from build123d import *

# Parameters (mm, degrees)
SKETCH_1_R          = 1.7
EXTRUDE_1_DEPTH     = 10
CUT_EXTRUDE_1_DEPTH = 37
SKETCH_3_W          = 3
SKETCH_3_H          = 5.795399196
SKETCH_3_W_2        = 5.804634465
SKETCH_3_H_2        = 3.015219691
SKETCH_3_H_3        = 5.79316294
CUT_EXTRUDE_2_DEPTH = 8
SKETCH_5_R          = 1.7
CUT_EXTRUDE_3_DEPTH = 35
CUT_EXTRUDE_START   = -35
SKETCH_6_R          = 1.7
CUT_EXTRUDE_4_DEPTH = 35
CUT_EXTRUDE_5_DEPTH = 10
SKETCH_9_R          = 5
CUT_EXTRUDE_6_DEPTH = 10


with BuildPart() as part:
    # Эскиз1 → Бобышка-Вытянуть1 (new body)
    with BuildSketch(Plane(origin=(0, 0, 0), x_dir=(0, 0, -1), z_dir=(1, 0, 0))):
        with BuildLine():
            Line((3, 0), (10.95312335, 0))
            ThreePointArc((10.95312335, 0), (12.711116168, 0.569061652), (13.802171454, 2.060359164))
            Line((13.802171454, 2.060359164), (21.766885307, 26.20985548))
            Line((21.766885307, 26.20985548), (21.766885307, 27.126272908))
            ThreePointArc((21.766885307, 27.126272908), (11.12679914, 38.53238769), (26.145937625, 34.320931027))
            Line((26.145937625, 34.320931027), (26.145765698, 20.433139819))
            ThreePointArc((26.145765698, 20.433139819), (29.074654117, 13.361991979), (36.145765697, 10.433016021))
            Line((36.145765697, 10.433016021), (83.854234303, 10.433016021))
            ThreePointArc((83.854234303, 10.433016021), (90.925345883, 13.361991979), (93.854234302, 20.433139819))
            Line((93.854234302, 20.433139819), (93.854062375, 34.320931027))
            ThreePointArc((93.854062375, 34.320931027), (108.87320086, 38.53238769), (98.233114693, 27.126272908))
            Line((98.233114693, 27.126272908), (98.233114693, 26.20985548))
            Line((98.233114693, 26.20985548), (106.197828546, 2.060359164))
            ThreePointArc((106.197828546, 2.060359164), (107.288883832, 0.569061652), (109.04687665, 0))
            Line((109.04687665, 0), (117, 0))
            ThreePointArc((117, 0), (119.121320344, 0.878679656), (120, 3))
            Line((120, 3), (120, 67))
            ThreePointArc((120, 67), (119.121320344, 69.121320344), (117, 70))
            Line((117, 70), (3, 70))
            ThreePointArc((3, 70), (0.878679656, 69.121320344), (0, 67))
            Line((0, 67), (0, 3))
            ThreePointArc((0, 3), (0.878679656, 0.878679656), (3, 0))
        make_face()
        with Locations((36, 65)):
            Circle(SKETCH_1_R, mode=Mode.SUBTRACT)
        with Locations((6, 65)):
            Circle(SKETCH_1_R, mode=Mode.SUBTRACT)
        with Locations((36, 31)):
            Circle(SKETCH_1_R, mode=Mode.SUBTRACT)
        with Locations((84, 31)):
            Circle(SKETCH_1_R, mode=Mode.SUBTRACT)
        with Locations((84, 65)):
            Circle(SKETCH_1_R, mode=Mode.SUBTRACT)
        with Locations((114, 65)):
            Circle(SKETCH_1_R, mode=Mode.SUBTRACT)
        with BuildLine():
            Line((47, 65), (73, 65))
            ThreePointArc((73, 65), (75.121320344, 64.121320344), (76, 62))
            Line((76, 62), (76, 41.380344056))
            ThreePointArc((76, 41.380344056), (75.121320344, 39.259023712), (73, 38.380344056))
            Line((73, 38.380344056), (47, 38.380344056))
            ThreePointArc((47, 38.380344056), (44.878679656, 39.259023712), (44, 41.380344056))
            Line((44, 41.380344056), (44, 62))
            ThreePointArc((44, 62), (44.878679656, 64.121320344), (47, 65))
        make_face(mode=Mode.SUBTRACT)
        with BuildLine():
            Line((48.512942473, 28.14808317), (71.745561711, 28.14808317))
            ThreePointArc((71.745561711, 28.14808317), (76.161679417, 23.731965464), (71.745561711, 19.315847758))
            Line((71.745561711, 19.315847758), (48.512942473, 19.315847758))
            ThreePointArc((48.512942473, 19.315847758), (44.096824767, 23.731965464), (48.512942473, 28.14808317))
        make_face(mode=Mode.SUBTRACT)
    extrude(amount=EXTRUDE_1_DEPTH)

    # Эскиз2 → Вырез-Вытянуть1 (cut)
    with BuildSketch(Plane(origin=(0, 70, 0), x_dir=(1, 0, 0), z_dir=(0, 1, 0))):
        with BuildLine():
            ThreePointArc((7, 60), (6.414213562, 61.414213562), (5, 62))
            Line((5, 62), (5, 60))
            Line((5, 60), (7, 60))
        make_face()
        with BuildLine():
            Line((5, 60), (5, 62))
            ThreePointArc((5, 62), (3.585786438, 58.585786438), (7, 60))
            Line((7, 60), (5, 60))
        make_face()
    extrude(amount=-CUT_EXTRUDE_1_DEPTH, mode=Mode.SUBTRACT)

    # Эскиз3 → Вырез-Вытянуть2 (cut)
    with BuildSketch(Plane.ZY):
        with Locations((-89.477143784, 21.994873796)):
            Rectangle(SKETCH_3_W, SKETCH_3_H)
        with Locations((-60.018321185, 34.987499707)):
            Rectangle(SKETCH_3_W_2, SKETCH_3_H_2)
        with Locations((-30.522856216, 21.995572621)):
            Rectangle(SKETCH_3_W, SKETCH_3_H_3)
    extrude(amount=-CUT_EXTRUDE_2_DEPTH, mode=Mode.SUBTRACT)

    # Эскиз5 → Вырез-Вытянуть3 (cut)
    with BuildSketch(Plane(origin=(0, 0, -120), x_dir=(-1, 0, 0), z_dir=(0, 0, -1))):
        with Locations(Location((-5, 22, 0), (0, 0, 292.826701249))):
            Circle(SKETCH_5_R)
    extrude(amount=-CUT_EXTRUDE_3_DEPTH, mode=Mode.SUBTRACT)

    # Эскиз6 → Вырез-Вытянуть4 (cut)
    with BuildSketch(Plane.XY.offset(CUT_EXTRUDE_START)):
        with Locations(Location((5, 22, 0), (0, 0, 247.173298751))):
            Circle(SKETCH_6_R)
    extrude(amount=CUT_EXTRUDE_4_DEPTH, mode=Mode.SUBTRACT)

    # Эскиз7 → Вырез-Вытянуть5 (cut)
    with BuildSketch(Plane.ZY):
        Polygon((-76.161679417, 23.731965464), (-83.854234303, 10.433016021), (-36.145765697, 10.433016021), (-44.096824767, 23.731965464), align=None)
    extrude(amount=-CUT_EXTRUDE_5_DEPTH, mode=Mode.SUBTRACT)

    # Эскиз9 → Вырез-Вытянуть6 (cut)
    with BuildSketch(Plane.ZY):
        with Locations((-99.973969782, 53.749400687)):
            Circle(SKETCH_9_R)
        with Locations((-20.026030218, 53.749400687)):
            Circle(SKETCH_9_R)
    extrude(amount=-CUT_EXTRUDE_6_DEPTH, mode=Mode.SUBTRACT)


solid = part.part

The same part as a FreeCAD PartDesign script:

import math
import FreeCAD as App
import Part
import Sketcher

doc = App.newDocument("Part")
body = doc.addObject("PartDesign::Body", "Body")

# Sketch on YZ plane
sketch1 = doc.addObject("Sketcher::SketchObject", "Sketch")
body.addObject(sketch1)
sketch1.AttachmentSupport = (doc.YZ_Plane, [""])
sketch1.MapMode = "FlatFace"
sketch1.addGeometry([
    Part.LineSegment(App.Vector(0, -3, 0), App.Vector(0, -11, 0)),  # 0
    Part.ArcOfCircle(Part.Circle(App.Vector(3, -11, 0), App.Vector(0, 0, 1), 3), math.radians(180), math.radians(252)),  # 1
    Part.LineSegment(App.Vector(2.1, -13.8, 0), App.Vector(26.2, -21.8, 0)),  # 2
    Part.LineSegment(App.Vector(26.2, -21.8, 0), App.Vector(27.1, -21.8, 0)),  # 3
    Part.ArcOfCircle(Part.Circle(App.Vector(34.3, -18, 0), App.Vector(0, 0, 1), 8.1), math.radians(-90), math.radians(207)),  # 4
    Part.LineSegment(App.Vector(34.3, -26.1, 0), App.Vector(20.4, -26.1, 0)),  # 5
    Part.ArcOfCircle(Part.Circle(App.Vector(20.4, -36.1, 0), App.Vector(0, 0, 1), 10), math.radians(90), math.radians(180)),  # 6
    Part.LineSegment(App.Vector(10.4, -36.1, 0), App.Vector(10.4, -83.9, 0)),  # 7
    Part.ArcOfCircle(Part.Circle(App.Vector(20.4, -83.9, 0), App.Vector(0, 0, 1), 10), math.radians(-180), math.radians(-90)),  # 8
    Part.LineSegment(App.Vector(20.4, -93.9, 0), App.Vector(34.3, -93.9, 0)),  # 9
    Part.ArcOfCircle(Part.Circle(App.Vector(34.3, -102, 0), App.Vector(0, 0, 1), 8.1), math.radians(153), math.radians(450)),  # 10
    Part.LineSegment(App.Vector(27.1, -98.2, 0), App.Vector(26.2, -98.2, 0)),  # 11
    Part.LineSegment(App.Vector(26.2, -98.2, 0), App.Vector(2.1, -106.2, 0)),  # 12
    Part.ArcOfCircle(Part.Circle(App.Vector(3, -109, 0), App.Vector(0, 0, 1), 3), math.radians(108), math.radians(180)),  # 13
    Part.LineSegment(App.Vector(0, -109, 0), App.Vector(0, -117, 0)),  # 14
    Part.ArcOfCircle(Part.Circle(App.Vector(3, -117, 0), App.Vector(0, 0, 1), 3), math.radians(180), math.radians(270)),  # 15
    Part.LineSegment(App.Vector(3, -120, 0), App.Vector(67, -120, 0)),  # 16
    Part.ArcOfCircle(Part.Circle(App.Vector(67, -117, 0), App.Vector(0, 0, 1), 3), math.radians(-90), math.radians(0)),  # 17
    Part.LineSegment(App.Vector(70, -117, 0), App.Vector(70, -3, 0)),  # 18
    Part.ArcOfCircle(Part.Circle(App.Vector(67, -3, 0), App.Vector(0, 0, 1), 3), math.radians(0), math.radians(90)),  # 19
    Part.LineSegment(App.Vector(67, 0, 0), App.Vector(3, 0, 0)),  # 20
    Part.ArcOfCircle(Part.Circle(App.Vector(3, -3, 0), App.Vector(0, 0, 1), 3), math.radians(90), math.radians(180)),  # 21
    Part.Circle(App.Vector(31, -36, 0), App.Vector(0, 0, 1), 1.7),  # 22
    Part.ArcOfCircle(Part.Circle(App.Vector(23.7, -48.5, 0), App.Vector(0, 0, 1), 4.4), math.radians(0), math.radians(180)),  # 23
    Part.LineSegment(App.Vector(28.1, -48.5, 0), App.Vector(28.1, -71.7, 0)),  # 24
    Part.ArcOfCircle(Part.Circle(App.Vector(23.7, -71.7, 0), App.Vector(0, 0, 1), 4.4), math.radians(180), math.radians(360)),  # 25
    Part.LineSegment(App.Vector(19.3, -71.7, 0), App.Vector(19.3, -48.5, 0)),  # 26
    Part.Circle(App.Vector(31, -84, 0), App.Vector(0, 0, 1), 1.7),  # 27
    Part.Circle(App.Vector(65, -6, 0), App.Vector(0, 0, 1), 1.7),  # 28
    Part.Circle(App.Vector(65, -36, 0), App.Vector(0, 0, 1), 1.7),  # 29
    Part.ArcOfCircle(Part.Circle(App.Vector(62, -47, 0), App.Vector(0, 0, 1), 3), math.radians(0), math.radians(90)),  # 30
    Part.LineSegment(App.Vector(65, -47, 0), App.Vector(65, -73, 0)),  # 31
    Part.ArcOfCircle(Part.Circle(App.Vector(62, -73, 0), App.Vector(0, 0, 1), 3), math.radians(-90), math.radians(0)),  # 32
    Part.LineSegment(App.Vector(62, -76, 0), App.Vector(41.4, -76, 0)),  # 33
    Part.ArcOfCircle(Part.Circle(App.Vector(41.4, -73, 0), App.Vector(0, 0, 1), 3), math.radians(180), math.radians(270)),  # 34
    Part.LineSegment(App.Vector(38.4, -73, 0), App.Vector(38.4, -47, 0)),  # 35
    Part.ArcOfCircle(Part.Circle(App.Vector(41.4, -47, 0), App.Vector(0, 0, 1), 3), math.radians(90), math.radians(180)),  # 36
    Part.LineSegment(App.Vector(41.4, -44, 0), App.Vector(62, -44, 0)),  # 37
    Part.Circle(App.Vector(65, -84, 0), App.Vector(0, 0, 1), 1.7),  # 38
    Part.Circle(App.Vector(65, -114, 0), App.Vector(0, 0, 1), 1.7),  # 39
], False)
sketch1.addConstraint([
    Sketcher.Constraint("Tangent", 0, 2, 1, 1),
    Sketcher.Constraint("Tangent", 1, 2, 2, 1),
    Sketcher.Constraint("Coincident", 2, 2, 3, 1),
    Sketcher.Constraint("Coincident", 3, 2, 4, 2),
    Sketcher.Constraint("Tangent", 4, 1, 5, 1),
    Sketcher.Constraint("Tangent", 5, 2, 6, 1),
    Sketcher.Constraint("Tangent", 6, 2, 7, 1),
    Sketcher.Constraint("Tangent", 7, 2, 8, 1),
    Sketcher.Constraint("Tangent", 8, 2, 9, 1),
    Sketcher.Constraint("Tangent", 9, 2, 10, 2),
    Sketcher.Constraint("Coincident", 10, 1, 11, 1),
    Sketcher.Constraint("Coincident", 11, 2, 12, 1),
    Sketcher.Constraint("Tangent", 12, 2, 13, 1),
    Sketcher.Constraint("Tangent", 13, 2, 14, 1),
    Sketcher.Constraint("Tangent", 14, 2, 15, 1),
    Sketcher.Constraint("Tangent", 15, 2, 16, 1),
    Sketcher.Constraint("Tangent", 16, 2, 17, 1),
    Sketcher.Constraint("Tangent", 17, 2, 18, 1),
    Sketcher.Constraint("Tangent", 18, 2, 19, 1),
    Sketcher.Constraint("Tangent", 19, 2, 20, 1),
    Sketcher.Constraint("Tangent", 20, 2, 21, 1),
    Sketcher.Constraint("Tangent", 21, 2, 0, 1),
    Sketcher.Constraint("Tangent", 23, 1, 24, 1),
    Sketcher.Constraint("Tangent", 24, 2, 25, 2),
    Sketcher.Constraint("Tangent", 25, 1, 26, 1),
    Sketcher.Constraint("Tangent", 26, 2, 23, 2),
    Sketcher.Constraint("Tangent", 30, 1, 31, 1),
    Sketcher.Constraint("Tangent", 31, 2, 32, 2),
    Sketcher.Constraint("Tangent", 32, 1, 33, 1),
    Sketcher.Constraint("Tangent", 33, 2, 34, 2),
    Sketcher.Constraint("Tangent", 34, 1, 35, 1),
    Sketcher.Constraint("Tangent", 35, 2, 36, 2),
    Sketcher.Constraint("Tangent", 36, 1, 37, 1),
    Sketcher.Constraint("Tangent", 37, 2, 30, 2),
    Sketcher.Constraint("Vertical", 0),
    Sketcher.Constraint("Horizontal", 3),
    Sketcher.Constraint("Vertical", 7),
    Sketcher.Constraint("Horizontal", 11),
    Sketcher.Constraint("Vertical", 14),
    Sketcher.Constraint("Horizontal", 16),
    Sketcher.Constraint("Vertical", 18),
    Sketcher.Constraint("Horizontal", 20),
    Sketcher.Constraint("Vertical", 24),
    Sketcher.Constraint("Vertical", 26),
    Sketcher.Constraint("Vertical", 31),
    Sketcher.Constraint("Horizontal", 33),
    Sketcher.Constraint("Vertical", 35),
    Sketcher.Constraint("Horizontal", 37),
    Sketcher.Constraint("Equal", 6, 8),
    Sketcher.Constraint("Equal", 4, 10),
    Sketcher.Constraint("Equal", 1, 13),
    Sketcher.Constraint("Equal", 13, 15),
    Sketcher.Constraint("Equal", 15, 17),
    Sketcher.Constraint("Equal", 17, 19),
    Sketcher.Constraint("Equal", 19, 21),
    Sketcher.Constraint("Equal", 22, 27),
    Sketcher.Constraint("Equal", 27, 28),
    Sketcher.Constraint("Equal", 28, 29),
    Sketcher.Constraint("Equal", 21, 30),
    Sketcher.Constraint("Equal", 30, 32),
    Sketcher.Constraint("Equal", 32, 34),
    Sketcher.Constraint("Equal", 34, 36),
    Sketcher.Constraint("Equal", 29, 38),
    Sketcher.Constraint("Equal", 38, 39),
    Sketcher.Constraint("PointOnObject", 0, 2, -2),
    Sketcher.Constraint("PointOnObject", 13, 2, -2),
    Sketcher.Constraint("PointOnObject", 19, 2, -1),
    Sketcher.Constraint("Horizontal", 22, 3, 29, 3),
    Sketcher.Constraint("Horizontal", 27, 3, 38, 3),
    Sketcher.Constraint("Vertical", 4, 3, 10, 3),
    Sketcher.Constraint("Vertical", 22, 3, 27, 3),
    Sketcher.Constraint("Vertical", 28, 3, 29, 3),
    Sketcher.Constraint("Vertical", 29, 3, 38, 3),
    Sketcher.Constraint("Vertical", 38, 3, 39, 3),
    Sketcher.Constraint("Vertical", 5, 2, 8, 2),
    Sketcher.Constraint("Vertical", 3, 2, 10, 1),
    Sketcher.Constraint("Vertical", 2, 2, 11, 2),
    Sketcher.Constraint("Vertical", 1, 2, 12, 2),
    Sketcher.Constraint("Vertical", 39, 3, 30, 1),
    Sketcher.Constraint("Equal", 0, 14),
    Sketcher.Constraint("Radius", 1, 3.0),
    Sketcher.Constraint("Radius", 6, 10.0),
    Sketcher.Constraint("Diameter", 22, 3.4),
    Sketcher.Constraint("Radius", 4, 8.1),
    Sketcher.Constraint("DistanceX", 16, 1, 16, 2, 64.0),
    Sketcher.Constraint("DistanceY", 18, 1, 18, 2, 114.0),
    Sketcher.Constraint("DistanceY", 31, 2, 31, 1, 26.0),
    Sketcher.Constraint("DistanceX", -1, 1, 22, 3, 31.0),
    Sketcher.Constraint("DistanceY", 22, 3, -1, 1, 36.0),
    Sketcher.Constraint("DistanceY", 27, 3, -1, 1, 84.0),
    Sketcher.Constraint("DistanceX", -1, 1, 28, 3, 65.0),
    Sketcher.Constraint("DistanceY", 28, 3, -1, 1, 6.0),
    Sketcher.Constraint("DistanceY", 30, 3, -1, 1, 47.0),
    Sketcher.Constraint("DistanceY", 39, 3, -1, 1, 114.0),
    Sketcher.Constraint("Radius", 23, 4.416118),
    Sketcher.Constraint("DistanceY", 7, 2, 7, 1, 47.708469),
    Sketcher.Constraint("DistanceY", 24, 2, 24, 1, 23.232619),
    Sketcher.Constraint("DistanceY", 10, 3, 25, 3, 30.208501),
    Sketcher.Constraint("DistanceX", 4, 1, 4, 3, 0.0001),
    Sketcher.Constraint("Distance", 5, 13.887791),
    Sketcher.Constraint("DistanceX", 3, 1, 3, 2, 0.916417),
    Sketcher.Constraint("DistanceX", 33, 2, 33, 1, 20.619656),
    Sketcher.Constraint("DistanceY", 0, 2, 0, 1, 7.953123),
    Sketcher.Constraint("DistanceX", -1, 1, 4, 3, 34.321031),
    Sketcher.Constraint("DistanceX", -1, 1, 1, 2, 2.060359),
    Sketcher.Constraint("DistanceX", 6, 3, 23, 3, 3.298949),
])
pad1 = doc.addObject("PartDesign::Pad", "Pad")
body.addObject(pad1)
pad1.Profile = sketch1
pad1.Length = 10

# Sketch on XZ plane
sketch2 = doc.addObject("Sketcher::SketchObject", "Sketch001")
body.addObject(sketch2)
sketch2.AttachmentSupport = (doc.XZ_Plane, [""])
sketch2.MapMode = "FlatFace"
sketch2.AttachmentOffset = App.Placement(App.Vector(0, 0, -70), App.Rotation())
sketch2.addGeometry([
    Part.ArcOfCircle(Part.Circle(App.Vector(5, -60, 0), App.Vector(0, 0, 1), 2), math.radians(-90), math.radians(0)),
    Part.ArcOfCircle(Part.Circle(App.Vector(5, -60, 0), App.Vector(0, 0, 1), 2), math.radians(0), math.radians(270)),
], False)
sketch2.addConstraint([
    Sketcher.Constraint("Tangent", 0, 1, 1, 2),
    Sketcher.Constraint("Coincident", 1, 1, 0, 2),
    Sketcher.Constraint("Horizontal", 0, 3, 1, 1),
    Sketcher.Constraint("Vertical", 1, 3, 0, 1),
    Sketcher.Constraint("Radius", 0, 2.0),
    Sketcher.Constraint("DistanceX", -1, 1, 0, 3, 5.0),
    Sketcher.Constraint("DistanceY", 0, 3, -1, 1, 60.0),
])
pocket1 = doc.addObject("PartDesign::Pocket", "Pocket")
body.addObject(pocket1)
pocket1.Profile = sketch2
pocket1.Length = 37
pocket1.Reversed = True

# Sketch on YZ plane
sketch3 = doc.addObject("Sketcher::SketchObject", "Sketch002")
body.addObject(sketch3)
sketch3.AttachmentSupport = (doc.YZ_Plane, [""])
sketch3.MapMode = "FlatFace"
sketch3.addGeometry([
    Part.LineSegment(App.Vector(24.9, -91, 0), App.Vector(19.1, -91, 0)),  # 0
    Part.LineSegment(App.Vector(19.1, -91, 0), App.Vector(19.1, -88, 0)),  # 1
    Part.LineSegment(App.Vector(19.1, -88, 0), App.Vector(24.9, -88, 0)),  # 2
    Part.LineSegment(App.Vector(24.9, -88, 0), App.Vector(24.9, -91, 0)),  # 3
    Part.LineSegment(App.Vector(36.5, -62.9, 0), App.Vector(33.5, -62.9, 0)),  # 4
    Part.LineSegment(App.Vector(33.5, -62.9, 0), App.Vector(33.5, -57.1, 0)),  # 5
    Part.LineSegment(App.Vector(33.5, -57.1, 0), App.Vector(36.5, -57.1, 0)),  # 6
    Part.LineSegment(App.Vector(36.5, -57.1, 0), App.Vector(36.5, -62.9, 0)),  # 7
    Part.LineSegment(App.Vector(24.9, -32, 0), App.Vector(19.1, -32, 0)),  # 8
    Part.LineSegment(App.Vector(19.1, -32, 0), App.Vector(19.1, -29, 0)),  # 9
    Part.LineSegment(App.Vector(19.1, -29, 0), App.Vector(24.9, -29, 0)),  # 10
    Part.LineSegment(App.Vector(24.9, -29, 0), App.Vector(24.9, -32, 0)),  # 11
], False)
sketch3.addConstraint([
    Sketcher.Constraint("Coincident", 0, 2, 1, 1),
    Sketcher.Constraint("Coincident", 1, 2, 2, 1),
    Sketcher.Constraint("Coincident", 2, 2, 3, 1),
    Sketcher.Constraint("Coincident", 3, 2, 0, 1),
    Sketcher.Constraint("Coincident", 4, 2, 5, 1),
    Sketcher.Constraint("Coincident", 5, 2, 6, 1),
    Sketcher.Constraint("Coincident", 6, 2, 7, 1),
    Sketcher.Constraint("Coincident", 7, 2, 4, 1),
    Sketcher.Constraint("Coincident", 8, 2, 9, 1),
    Sketcher.Constraint("Coincident", 9, 2, 10, 1),
    Sketcher.Constraint("Coincident", 10, 2, 11, 1),
    Sketcher.Constraint("Coincident", 11, 2, 8, 1),
    Sketcher.Constraint("Horizontal", 0),
    Sketcher.Constraint("Vertical", 1),
    Sketcher.Constraint("Horizontal", 2),
    Sketcher.Constraint("Vertical", 3),
    Sketcher.Constraint("Horizontal", 4),
    Sketcher.Constraint("Vertical", 5),
    Sketcher.Constraint("Horizontal", 6),
    Sketcher.Constraint("Vertical", 7),
    Sketcher.Constraint("Horizontal", 8),
    Sketcher.Constraint("Vertical", 9),
    Sketcher.Constraint("Horizontal", 10),
    Sketcher.Constraint("Vertical", 11),
    Sketcher.Constraint("Equal", 3, 9),
    Sketcher.Constraint("DistanceY", 1, 1, 1, 2, 3.0),
    Sketcher.Constraint("DistanceX", 0, 2, 0, 1, 5.795399),
    Sketcher.Constraint("DistanceX", 4, 2, 4, 1, 3.01522),
    Sketcher.Constraint("DistanceX", 8, 2, 5, 2, 14.380899),
    Sketcher.Constraint("DistanceX", 8, 2, 8, 1, 5.793163),
    Sketcher.Constraint("DistanceY", 5, 1, 5, 2, 5.804634),
    Sketcher.Constraint("DistanceX", -1, 1, 4, 2, 33.47989),
    Sketcher.Constraint("DistanceY", 4, 2, -1, 1, 62.920638),
    Sketcher.Constraint("DistanceY", 2, 2, 5, 2, 30.86114),
    Sketcher.Constraint("DistanceX", -1, 1, 0, 2, 19.097174),
    Sketcher.Constraint("DistanceY", 8, 2, -1, 1, 32.022856),
])
pocket2 = doc.addObject("PartDesign::Pocket", "Pocket001")
body.addObject(pocket2)
pocket2.Profile = sketch3
pocket2.Length = 8
pocket2.Reversed = True

# Sketch on XY plane
sketch4 = doc.addObject("Sketcher::SketchObject", "Sketch003")
body.addObject(sketch4)
sketch4.AttachmentSupport = (doc.XY_Plane, [""])
sketch4.MapMode = "FlatFace"
sketch4.AttachmentOffset = App.Placement(App.Vector(0, 0, -120), App.Rotation())
sketch4.addGeometry(Part.Circle(App.Vector(5, 22, 0), App.Vector(0, 0, 1), 1.7), False)
sketch4.addConstraint([
    Sketcher.Constraint("Diameter", 0, 3.4),
    Sketcher.Constraint("DistanceX", -1, 1, 0, 3, 5.0),
    Sketcher.Constraint("DistanceY", -1, 1, 0, 3, 22.0),
])
pocket3 = doc.addObject("PartDesign::Pocket", "Pocket002")
body.addObject(pocket3)
pocket3.Profile = sketch4
pocket3.Length = 35
pocket3.Reversed = True

# Sketch on XY plane
sketch5 = doc.addObject("Sketcher::SketchObject", "Sketch004")
body.addObject(sketch5)
sketch5.AttachmentSupport = (doc.XY_Plane, [""])
sketch5.MapMode = "FlatFace"
sketch5.AttachmentOffset = App.Placement(App.Vector(0, 0, -35), App.Rotation())
sketch5.addGeometry(Part.Circle(App.Vector(5, 22, 0), App.Vector(0, 0, 1), 1.7), False)
sketch5.addConstraint([
    Sketcher.Constraint("Diameter", 0, 3.4),
    Sketcher.Constraint("DistanceX", -1, 1, 0, 3, 5.0),
    Sketcher.Constraint("DistanceY", -1, 1, 0, 3, 22.0),
])
pocket4 = doc.addObject("PartDesign::Pocket", "Pocket003")
body.addObject(pocket4)
pocket4.Profile = sketch5
pocket4.Length = 35
pocket4.Reversed = True

# Sketch on YZ plane
sketch6 = doc.addObject("Sketcher::SketchObject", "Sketch005")
body.addObject(sketch6)
sketch6.AttachmentSupport = (doc.YZ_Plane, [""])
sketch6.MapMode = "FlatFace"
sketch6.addGeometry([
    Part.LineSegment(App.Vector(24, -76, 0), App.Vector(10, -84, 0)),
    Part.LineSegment(App.Vector(10, -84, 0), App.Vector(10, -36, 0)),
    Part.LineSegment(App.Vector(10, -36, 0), App.Vector(24, -44, 0)),
    Part.LineSegment(App.Vector(24, -44, 0), App.Vector(24, -76, 0)),
], False)
sketch6.addConstraint([
    Sketcher.Constraint("Coincident", 0, 2, 1, 1),
    Sketcher.Constraint("Coincident", 1, 2, 2, 1),
    Sketcher.Constraint("Coincident", 2, 2, 3, 1),
    Sketcher.Constraint("Coincident", 3, 2, 0, 1),
    Sketcher.Constraint("Vertical", 1),
    Sketcher.Constraint("Vertical", 3),
    Sketcher.Constraint("DistanceY", 1, 1, 1, 2, 47.708469),
    Sketcher.Constraint("Distance", 0, 15.363511),
    Sketcher.Constraint("Distance", 2, 15.49456),
    Sketcher.Constraint("DistanceY", 3, 2, 3, 1, 32.064855),
    Sketcher.Constraint("DistanceY", 3, 2, -1, 1, 76.161679),
    Sketcher.Constraint("DistanceX", -1, 1, 0, 2, 10.433016),
])
pocket5 = doc.addObject("PartDesign::Pocket", "Pocket004")
body.addObject(pocket5)
pocket5.Profile = sketch6
pocket5.Length = 10
pocket5.Reversed = True

# Sketch on YZ plane
sketch7 = doc.addObject("Sketcher::SketchObject", "Sketch006")
body.addObject(sketch7)
sketch7.AttachmentSupport = (doc.YZ_Plane, [""])
sketch7.MapMode = "FlatFace"
sketch7.addGeometry([
    Part.Circle(App.Vector(54, -100, 0), App.Vector(0, 0, 1), 5),
    Part.Circle(App.Vector(54, -20, 0), App.Vector(0, 0, 1), 5),
], False)
sketch7.addConstraint([
    Sketcher.Constraint("Equal", 0, 1),
    Sketcher.Constraint("Vertical", 0, 3, 1, 3),
    Sketcher.Constraint("Diameter", 0, 10.0),
    Sketcher.Constraint("DistanceX", -1, 1, 0, 3, 53.749401),
    Sketcher.Constraint("DistanceY", 0, 3, -1, 1, 99.97397),
    Sketcher.Constraint("DistanceY", 1, 3, -1, 1, 20.02603),
])
pocket6 = doc.addObject("PartDesign::Pocket", "Pocket005")
body.addObject(pocket6)
pocket6.Profile = sketch7
pocket6.Length = 10
pocket6.Reversed = True

doc.recompute()
